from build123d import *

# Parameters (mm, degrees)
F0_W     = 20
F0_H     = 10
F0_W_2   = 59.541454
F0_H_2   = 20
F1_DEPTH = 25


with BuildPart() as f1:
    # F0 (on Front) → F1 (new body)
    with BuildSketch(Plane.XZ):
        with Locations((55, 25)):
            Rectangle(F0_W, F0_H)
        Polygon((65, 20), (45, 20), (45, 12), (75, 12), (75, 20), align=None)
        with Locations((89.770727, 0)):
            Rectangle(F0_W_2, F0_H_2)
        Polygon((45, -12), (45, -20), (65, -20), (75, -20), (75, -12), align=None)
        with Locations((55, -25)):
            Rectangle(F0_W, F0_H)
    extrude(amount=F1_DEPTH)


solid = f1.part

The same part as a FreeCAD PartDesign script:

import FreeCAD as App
import Part
import Sketcher
from FreeCAD import Vector


def add_polygon(sketch, points):
    """Adds a closed chain of lines whose ends are joined by coincident constraints."""
    first, n = sketch.GeometryCount, len(points)
    for a, b in zip(points, points[1:] + points[:1]):
        sketch.addGeometry(Part.LineSegment(App.Vector(*a, 0), App.Vector(*b, 0)), False)
    for i in range(n):
        sketch.addConstraint(Sketcher.Constraint("Coincident", first + i, 2, first + (i + 1) % n, 1))

doc = App.newDocument("Part")
body = doc.addObject("PartDesign::Body", "Body")
body.AllowCompound = True

# Sketch on XZ plane
sketch1 = doc.addObject("Sketcher::SketchObject", "Sketch")
body.addObject(sketch1)
sketch1.AttachmentSupport = (doc.XZ_Plane, [""])
sketch1.MapMode = "FlatFace"
add_polygon(sketch1, [(45, 30), (45, 12), (75, 12), (75, 20), (65, 20), (65, 30)])  # lines 0-5
add_polygon(sketch1, [(60, 10), (60, -10), (119.541454, -10), (119.541454, 10)])  # lines 6-9
add_polygon(sketch1, [(45, -12), (45, -30), (65, -30), (65, -20), (75, -20), (75, -12)])  # lines 10-15
sketch1.addConstraint([
    Sketcher.Constraint("Vertical", 0),
    Sketcher.Constraint("Horizontal", 1),
    Sketcher.Constraint("Vertical", 2),
    Sketcher.Constraint("Horizontal", 3),
    Sketcher.Constraint("Vertical", 4),
    Sketcher.Constraint("Horizontal", 5),
    Sketcher.Constraint("Vertical", 6),
    Sketcher.Constraint("Horizontal", 7),
    Sketcher.Constraint("Vertical", 8),
    Sketcher.Constraint("Horizontal", 9),
    Sketcher.Constraint("Vertical", 10),
    Sketcher.Constraint("Horizontal", 11),
    Sketcher.Constraint("Vertical", 12),
    Sketcher.Constraint("Horizontal", 13),
    Sketcher.Constraint("Vertical", 14),
    Sketcher.Constraint("Horizontal", 15),
    Sketcher.Constraint("Symmetric", 5, 2, 10, 2, -1),
    Sketcher.Constraint("Symmetric", 3, 2, 12, 2, -1),
    Sketcher.Constraint("Symmetric", 1, 2, 14, 2, -1),
    Sketcher.Constraint("Equal", 13, 4),
    Sketcher.Constraint("Equal", 11, 6),
    Sketcher.Constraint("DistanceX", 1, 1, 1, 2, 30.0),
    Sketcher.Constraint("DistanceX", 3, 2, 3, 1, 10.0),
    Sketcher.Constraint("DistanceY", 0, 2, 0, 1, 18.0),
    Sketcher.Constraint("DistanceX", -1, 1, 0, 2, 45.0),
    Sketcher.Constraint("DistanceY", -1, 1, 0, 2, 12.0),
    Sketcher.Constraint("DistanceX", -1, 1, 6, 2, 60.0),
    Sketcher.Constraint("DistanceY", 6, 2, -1, 1, 10.0),
    Sketcher.Constraint("DistanceX", 7, 1, 7, 2, 59.541454),
])
pad1 = doc.addObject("PartDesign::Pad", "Pad")
body.addObject(pad1)
pad1.Profile = sketch1
pad1.Length = 25

doc.recompute()
